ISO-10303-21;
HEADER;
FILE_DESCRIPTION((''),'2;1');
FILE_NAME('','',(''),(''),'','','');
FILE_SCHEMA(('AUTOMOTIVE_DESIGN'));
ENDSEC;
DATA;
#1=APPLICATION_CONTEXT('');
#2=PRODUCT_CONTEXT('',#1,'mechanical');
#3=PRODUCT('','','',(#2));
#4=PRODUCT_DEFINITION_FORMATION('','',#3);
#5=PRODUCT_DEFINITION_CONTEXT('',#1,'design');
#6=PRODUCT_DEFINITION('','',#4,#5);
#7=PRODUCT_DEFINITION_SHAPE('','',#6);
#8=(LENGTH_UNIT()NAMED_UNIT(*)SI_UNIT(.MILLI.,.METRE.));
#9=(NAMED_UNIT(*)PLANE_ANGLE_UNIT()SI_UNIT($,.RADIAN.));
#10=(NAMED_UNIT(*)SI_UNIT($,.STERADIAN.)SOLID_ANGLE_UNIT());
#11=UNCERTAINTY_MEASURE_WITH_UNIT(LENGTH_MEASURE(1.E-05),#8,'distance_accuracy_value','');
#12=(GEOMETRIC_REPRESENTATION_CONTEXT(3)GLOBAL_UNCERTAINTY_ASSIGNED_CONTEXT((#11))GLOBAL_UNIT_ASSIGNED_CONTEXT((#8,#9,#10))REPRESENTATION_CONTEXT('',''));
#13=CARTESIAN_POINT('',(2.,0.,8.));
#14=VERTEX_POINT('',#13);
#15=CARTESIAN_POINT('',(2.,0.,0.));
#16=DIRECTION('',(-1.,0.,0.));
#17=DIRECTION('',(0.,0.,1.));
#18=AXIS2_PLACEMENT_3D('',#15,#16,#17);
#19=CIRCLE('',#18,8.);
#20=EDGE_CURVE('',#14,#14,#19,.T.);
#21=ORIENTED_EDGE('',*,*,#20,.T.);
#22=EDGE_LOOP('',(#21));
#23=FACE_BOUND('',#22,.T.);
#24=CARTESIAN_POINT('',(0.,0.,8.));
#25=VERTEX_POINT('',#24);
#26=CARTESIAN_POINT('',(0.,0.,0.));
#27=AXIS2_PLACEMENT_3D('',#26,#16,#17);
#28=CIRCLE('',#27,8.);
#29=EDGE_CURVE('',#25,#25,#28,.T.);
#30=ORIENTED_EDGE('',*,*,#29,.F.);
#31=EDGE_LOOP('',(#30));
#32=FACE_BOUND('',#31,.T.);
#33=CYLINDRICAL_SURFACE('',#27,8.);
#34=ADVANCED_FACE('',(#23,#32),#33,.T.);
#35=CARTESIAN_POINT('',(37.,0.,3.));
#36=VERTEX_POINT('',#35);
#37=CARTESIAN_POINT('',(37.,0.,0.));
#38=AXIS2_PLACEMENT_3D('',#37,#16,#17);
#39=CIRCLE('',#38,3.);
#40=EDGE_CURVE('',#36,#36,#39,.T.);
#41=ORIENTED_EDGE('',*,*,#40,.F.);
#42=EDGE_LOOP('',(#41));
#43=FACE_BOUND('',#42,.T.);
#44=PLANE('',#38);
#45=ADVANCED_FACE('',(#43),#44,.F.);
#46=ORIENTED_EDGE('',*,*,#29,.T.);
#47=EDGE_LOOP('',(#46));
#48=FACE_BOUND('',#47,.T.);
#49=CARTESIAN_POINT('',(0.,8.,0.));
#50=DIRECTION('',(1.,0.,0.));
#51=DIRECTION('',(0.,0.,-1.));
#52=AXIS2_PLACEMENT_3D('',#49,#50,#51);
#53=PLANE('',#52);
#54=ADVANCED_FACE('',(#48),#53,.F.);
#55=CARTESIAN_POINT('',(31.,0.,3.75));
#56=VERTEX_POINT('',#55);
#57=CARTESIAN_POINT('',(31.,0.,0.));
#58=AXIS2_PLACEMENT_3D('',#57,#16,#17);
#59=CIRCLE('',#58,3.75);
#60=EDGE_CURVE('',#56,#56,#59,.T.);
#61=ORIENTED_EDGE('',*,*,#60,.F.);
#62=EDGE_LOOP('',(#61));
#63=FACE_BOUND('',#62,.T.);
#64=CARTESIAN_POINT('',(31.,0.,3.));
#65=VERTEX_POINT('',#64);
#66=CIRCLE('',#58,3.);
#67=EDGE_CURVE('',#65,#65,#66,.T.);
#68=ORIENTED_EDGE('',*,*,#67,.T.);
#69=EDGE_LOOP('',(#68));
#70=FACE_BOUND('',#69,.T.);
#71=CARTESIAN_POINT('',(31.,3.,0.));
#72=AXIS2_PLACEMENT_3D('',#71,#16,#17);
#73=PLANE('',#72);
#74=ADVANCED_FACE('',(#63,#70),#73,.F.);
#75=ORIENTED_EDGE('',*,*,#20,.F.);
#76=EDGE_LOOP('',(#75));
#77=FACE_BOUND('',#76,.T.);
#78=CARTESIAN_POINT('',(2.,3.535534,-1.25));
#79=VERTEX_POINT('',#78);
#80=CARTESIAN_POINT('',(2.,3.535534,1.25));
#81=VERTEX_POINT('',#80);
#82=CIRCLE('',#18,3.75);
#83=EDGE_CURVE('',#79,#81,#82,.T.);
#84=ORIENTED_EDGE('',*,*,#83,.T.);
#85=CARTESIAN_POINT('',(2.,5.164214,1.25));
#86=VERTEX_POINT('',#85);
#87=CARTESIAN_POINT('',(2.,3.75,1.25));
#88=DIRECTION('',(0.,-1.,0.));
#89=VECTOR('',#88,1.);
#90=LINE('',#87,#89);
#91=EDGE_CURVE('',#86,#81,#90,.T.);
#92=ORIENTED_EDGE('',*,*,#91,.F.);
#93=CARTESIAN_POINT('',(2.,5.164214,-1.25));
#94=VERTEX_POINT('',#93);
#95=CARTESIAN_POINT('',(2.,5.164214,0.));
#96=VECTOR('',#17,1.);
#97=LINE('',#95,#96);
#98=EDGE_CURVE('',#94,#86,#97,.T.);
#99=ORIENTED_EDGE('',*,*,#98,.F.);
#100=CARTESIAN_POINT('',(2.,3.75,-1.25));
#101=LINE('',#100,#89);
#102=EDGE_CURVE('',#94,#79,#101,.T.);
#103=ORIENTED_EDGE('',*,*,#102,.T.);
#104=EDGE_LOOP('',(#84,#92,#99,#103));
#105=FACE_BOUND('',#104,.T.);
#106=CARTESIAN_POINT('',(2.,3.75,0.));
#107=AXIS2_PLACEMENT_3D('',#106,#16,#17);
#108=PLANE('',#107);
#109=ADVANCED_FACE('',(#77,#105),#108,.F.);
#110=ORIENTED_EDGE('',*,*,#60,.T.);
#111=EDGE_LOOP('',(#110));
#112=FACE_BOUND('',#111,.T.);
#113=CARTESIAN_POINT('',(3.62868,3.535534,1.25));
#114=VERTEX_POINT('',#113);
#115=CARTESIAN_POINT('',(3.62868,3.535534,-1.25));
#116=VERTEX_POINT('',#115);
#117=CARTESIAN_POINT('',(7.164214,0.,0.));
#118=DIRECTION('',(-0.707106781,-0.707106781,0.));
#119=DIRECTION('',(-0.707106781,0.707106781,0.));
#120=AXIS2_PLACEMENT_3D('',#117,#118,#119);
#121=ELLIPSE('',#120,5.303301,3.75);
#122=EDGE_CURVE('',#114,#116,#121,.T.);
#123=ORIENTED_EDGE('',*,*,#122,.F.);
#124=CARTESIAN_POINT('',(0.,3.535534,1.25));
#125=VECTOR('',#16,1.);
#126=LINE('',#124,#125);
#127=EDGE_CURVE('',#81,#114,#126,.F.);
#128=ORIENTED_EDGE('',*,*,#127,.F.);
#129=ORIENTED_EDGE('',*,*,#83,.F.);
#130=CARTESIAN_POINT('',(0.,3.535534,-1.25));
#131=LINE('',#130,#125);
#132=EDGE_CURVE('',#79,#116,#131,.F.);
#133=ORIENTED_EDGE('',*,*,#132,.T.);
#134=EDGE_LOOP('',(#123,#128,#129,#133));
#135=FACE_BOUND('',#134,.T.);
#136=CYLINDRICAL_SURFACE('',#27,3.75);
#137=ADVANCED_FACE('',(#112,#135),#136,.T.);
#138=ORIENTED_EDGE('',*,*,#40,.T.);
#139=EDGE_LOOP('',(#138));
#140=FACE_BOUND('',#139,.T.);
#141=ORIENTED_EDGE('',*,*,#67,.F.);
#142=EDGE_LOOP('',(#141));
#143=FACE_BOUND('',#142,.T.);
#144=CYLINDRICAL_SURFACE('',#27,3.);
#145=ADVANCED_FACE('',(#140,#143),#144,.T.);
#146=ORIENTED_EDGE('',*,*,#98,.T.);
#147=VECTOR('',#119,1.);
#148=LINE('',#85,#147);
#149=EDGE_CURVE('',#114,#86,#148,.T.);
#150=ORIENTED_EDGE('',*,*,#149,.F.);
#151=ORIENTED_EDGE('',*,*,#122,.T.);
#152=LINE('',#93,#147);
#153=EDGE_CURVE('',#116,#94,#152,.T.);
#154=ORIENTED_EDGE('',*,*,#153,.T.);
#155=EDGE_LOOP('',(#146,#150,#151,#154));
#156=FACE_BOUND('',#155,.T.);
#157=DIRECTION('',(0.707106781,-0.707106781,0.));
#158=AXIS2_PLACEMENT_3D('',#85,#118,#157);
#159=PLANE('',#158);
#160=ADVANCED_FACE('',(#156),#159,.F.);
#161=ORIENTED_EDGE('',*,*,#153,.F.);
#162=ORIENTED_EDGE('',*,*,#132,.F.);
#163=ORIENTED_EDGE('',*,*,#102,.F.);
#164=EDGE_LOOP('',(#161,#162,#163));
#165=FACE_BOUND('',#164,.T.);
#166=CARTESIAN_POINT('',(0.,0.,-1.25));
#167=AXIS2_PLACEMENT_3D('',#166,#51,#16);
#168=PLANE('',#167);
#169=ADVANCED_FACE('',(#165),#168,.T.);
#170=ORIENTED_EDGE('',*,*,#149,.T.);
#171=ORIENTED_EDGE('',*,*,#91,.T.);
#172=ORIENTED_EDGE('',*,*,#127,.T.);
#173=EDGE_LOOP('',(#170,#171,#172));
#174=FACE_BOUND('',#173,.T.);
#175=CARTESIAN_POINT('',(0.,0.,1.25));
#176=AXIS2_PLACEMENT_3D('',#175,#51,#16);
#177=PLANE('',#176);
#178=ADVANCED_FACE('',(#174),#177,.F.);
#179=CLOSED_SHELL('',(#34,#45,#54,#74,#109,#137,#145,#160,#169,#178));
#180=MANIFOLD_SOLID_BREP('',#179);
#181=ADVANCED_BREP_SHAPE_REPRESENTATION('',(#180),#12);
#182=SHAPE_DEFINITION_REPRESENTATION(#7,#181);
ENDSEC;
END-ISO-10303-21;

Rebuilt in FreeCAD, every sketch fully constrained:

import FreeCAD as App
import Part
import Sketcher
from FreeCAD import Vector
Q = App.Units.Quantity


def add_polygon(sketch, points):
    """Adds a closed chain of lines whose ends are joined by coincident constraints."""
    first, n = sketch.GeometryCount, len(points)
    for a, b in zip(points, points[1:] + points[:1]):
        sketch.addGeometry(Part.LineSegment(App.Vector(*a, 0), App.Vector(*b, 0)), False)
    for i in range(n):
        sketch.addConstraint(Sketcher.Constraint("Coincident", first + i, 2, first + (i + 1) % n, 1))

doc = App.newDocument("Part")
params = doc.addObject("Spreadsheet::Sheet", "Params")
for row, (alias, value) in enumerate([
    ("sketch1_width", "37 mm"),
    ("sketch1_width2", "6 mm"),
    ("sketch1_width3", "29 mm"),
    ("sketch1_height", "3 mm"),
    ("sketch1_height2", "8 mm"),
    ("revolution_angle", "360 deg"),
    ("pad1_length", "2.5 mm"),
], start=1):
    params.set(f"A{row}", alias)
    params.set(f"B{row}", "=" + value)
    params.setAlias(f"B{row}", alias)

body = doc.addObject("PartDesign::Body", "Body")

# Sketch on XY plane
sketch1 = body.newObject("Sketcher::SketchObject", "Sketch")
sketch1.AttachmentSupport = (doc.getObject("XY_Plane"), [""])
sketch1.MapMode = "FlatFace"
add_polygon(sketch1, [(0, 0), (37, 0), (37, 3), (31, 3), (31, 3.8), (2, 3.8), (2, 8), (0, 8)])  # lines 0-7
sketch1.addConstraint([
    Sketcher.Constraint("Horizontal", 0),
    Sketcher.Constraint("Vertical", 1),
    Sketcher.Constraint("Horizontal", 2),
    Sketcher.Constraint("Vertical", 3),
    Sketcher.Constraint("Horizontal", 4),
    Sketcher.Constraint("Vertical", 5),
    Sketcher.Constraint("Horizontal", 6),
    Sketcher.Constraint("Vertical", 7),
    Sketcher.Constraint("Coincident", 7, 2, -1, 1),
    Sketcher.Constraint("DistanceX", 0, 1, 0, 2, Q("37 mm")),
    Sketcher.Constraint("DistanceX", 2, 2, 2, 1, Q("6 mm")),
    Sketcher.Constraint("DistanceX", 4, 2, 4, 1, Q("29 mm")),
    Sketcher.Constraint("DistanceY", 1, 1, 1, 2, Q("3 mm")),
    Sketcher.Constraint("DistanceY", 7, 2, 7, 1, Q("8 mm")),
    Sketcher.Constraint("DistanceY", 3, 1, 3, 2, Q("0.75 mm")),
])
sketch1.setExpression("Constraints[17]", "Params.sketch1_width")
sketch1.setExpression("Constraints[18]", "Params.sketch1_width2")
sketch1.setExpression("Constraints[19]", "Params.sketch1_width3")
sketch1.setExpression("Constraints[20]", "Params.sketch1_height")
sketch1.setExpression("Constraints[21]", "Params.sketch1_height2")
revolution = body.newObject("PartDesign::Revolution", "Revolution")
revolution.Profile = sketch1
revolution.ReferenceAxis = (sketch1, ["H_Axis"])
revolution.setExpression("Angle", "Params.revolution_angle")

# Sketch on XY plane
sketch2 = body.newObject("Sketcher::SketchObject", "Sketch001")
sketch2.AttachmentSupport = (doc.getObject("XY_Plane"), [""])
sketch2.MapMode = "FlatFace"
add_polygon(sketch2, [(5.4, 1.7), (2, 5.2), (0.7, 6.5), (0.7, 1.7)])  # lines 0-3
sketch2.addConstraint([
    Sketcher.Constraint("Vertical", 2),
    Sketcher.Constraint("Horizontal", 3),
    Sketcher.Constraint("Parallel", 0, 1),
    Sketcher.Constraint("Equal", 3, 2),
    Sketcher.Constraint("DistanceX", -1, 1, 0, 2, Q("2 mm")),
    Sketcher.Constraint("DistanceX", 3, 1, 3, 2, Q("4.713699 mm")),
    Sketcher.Constraint("Distance", 1, Q("1.82077 mm")),
    Sketcher.Constraint("DistanceY", -1, 1, 0, 2, Q("5.164214 mm")),
])
pad1 = body.newObject("PartDesign::Pad", "Pad")
pad1.Profile = sketch2
pad1.setExpression("Length", "Params.pad1_length")
pad1.Midplane = True

doc.recompute()
